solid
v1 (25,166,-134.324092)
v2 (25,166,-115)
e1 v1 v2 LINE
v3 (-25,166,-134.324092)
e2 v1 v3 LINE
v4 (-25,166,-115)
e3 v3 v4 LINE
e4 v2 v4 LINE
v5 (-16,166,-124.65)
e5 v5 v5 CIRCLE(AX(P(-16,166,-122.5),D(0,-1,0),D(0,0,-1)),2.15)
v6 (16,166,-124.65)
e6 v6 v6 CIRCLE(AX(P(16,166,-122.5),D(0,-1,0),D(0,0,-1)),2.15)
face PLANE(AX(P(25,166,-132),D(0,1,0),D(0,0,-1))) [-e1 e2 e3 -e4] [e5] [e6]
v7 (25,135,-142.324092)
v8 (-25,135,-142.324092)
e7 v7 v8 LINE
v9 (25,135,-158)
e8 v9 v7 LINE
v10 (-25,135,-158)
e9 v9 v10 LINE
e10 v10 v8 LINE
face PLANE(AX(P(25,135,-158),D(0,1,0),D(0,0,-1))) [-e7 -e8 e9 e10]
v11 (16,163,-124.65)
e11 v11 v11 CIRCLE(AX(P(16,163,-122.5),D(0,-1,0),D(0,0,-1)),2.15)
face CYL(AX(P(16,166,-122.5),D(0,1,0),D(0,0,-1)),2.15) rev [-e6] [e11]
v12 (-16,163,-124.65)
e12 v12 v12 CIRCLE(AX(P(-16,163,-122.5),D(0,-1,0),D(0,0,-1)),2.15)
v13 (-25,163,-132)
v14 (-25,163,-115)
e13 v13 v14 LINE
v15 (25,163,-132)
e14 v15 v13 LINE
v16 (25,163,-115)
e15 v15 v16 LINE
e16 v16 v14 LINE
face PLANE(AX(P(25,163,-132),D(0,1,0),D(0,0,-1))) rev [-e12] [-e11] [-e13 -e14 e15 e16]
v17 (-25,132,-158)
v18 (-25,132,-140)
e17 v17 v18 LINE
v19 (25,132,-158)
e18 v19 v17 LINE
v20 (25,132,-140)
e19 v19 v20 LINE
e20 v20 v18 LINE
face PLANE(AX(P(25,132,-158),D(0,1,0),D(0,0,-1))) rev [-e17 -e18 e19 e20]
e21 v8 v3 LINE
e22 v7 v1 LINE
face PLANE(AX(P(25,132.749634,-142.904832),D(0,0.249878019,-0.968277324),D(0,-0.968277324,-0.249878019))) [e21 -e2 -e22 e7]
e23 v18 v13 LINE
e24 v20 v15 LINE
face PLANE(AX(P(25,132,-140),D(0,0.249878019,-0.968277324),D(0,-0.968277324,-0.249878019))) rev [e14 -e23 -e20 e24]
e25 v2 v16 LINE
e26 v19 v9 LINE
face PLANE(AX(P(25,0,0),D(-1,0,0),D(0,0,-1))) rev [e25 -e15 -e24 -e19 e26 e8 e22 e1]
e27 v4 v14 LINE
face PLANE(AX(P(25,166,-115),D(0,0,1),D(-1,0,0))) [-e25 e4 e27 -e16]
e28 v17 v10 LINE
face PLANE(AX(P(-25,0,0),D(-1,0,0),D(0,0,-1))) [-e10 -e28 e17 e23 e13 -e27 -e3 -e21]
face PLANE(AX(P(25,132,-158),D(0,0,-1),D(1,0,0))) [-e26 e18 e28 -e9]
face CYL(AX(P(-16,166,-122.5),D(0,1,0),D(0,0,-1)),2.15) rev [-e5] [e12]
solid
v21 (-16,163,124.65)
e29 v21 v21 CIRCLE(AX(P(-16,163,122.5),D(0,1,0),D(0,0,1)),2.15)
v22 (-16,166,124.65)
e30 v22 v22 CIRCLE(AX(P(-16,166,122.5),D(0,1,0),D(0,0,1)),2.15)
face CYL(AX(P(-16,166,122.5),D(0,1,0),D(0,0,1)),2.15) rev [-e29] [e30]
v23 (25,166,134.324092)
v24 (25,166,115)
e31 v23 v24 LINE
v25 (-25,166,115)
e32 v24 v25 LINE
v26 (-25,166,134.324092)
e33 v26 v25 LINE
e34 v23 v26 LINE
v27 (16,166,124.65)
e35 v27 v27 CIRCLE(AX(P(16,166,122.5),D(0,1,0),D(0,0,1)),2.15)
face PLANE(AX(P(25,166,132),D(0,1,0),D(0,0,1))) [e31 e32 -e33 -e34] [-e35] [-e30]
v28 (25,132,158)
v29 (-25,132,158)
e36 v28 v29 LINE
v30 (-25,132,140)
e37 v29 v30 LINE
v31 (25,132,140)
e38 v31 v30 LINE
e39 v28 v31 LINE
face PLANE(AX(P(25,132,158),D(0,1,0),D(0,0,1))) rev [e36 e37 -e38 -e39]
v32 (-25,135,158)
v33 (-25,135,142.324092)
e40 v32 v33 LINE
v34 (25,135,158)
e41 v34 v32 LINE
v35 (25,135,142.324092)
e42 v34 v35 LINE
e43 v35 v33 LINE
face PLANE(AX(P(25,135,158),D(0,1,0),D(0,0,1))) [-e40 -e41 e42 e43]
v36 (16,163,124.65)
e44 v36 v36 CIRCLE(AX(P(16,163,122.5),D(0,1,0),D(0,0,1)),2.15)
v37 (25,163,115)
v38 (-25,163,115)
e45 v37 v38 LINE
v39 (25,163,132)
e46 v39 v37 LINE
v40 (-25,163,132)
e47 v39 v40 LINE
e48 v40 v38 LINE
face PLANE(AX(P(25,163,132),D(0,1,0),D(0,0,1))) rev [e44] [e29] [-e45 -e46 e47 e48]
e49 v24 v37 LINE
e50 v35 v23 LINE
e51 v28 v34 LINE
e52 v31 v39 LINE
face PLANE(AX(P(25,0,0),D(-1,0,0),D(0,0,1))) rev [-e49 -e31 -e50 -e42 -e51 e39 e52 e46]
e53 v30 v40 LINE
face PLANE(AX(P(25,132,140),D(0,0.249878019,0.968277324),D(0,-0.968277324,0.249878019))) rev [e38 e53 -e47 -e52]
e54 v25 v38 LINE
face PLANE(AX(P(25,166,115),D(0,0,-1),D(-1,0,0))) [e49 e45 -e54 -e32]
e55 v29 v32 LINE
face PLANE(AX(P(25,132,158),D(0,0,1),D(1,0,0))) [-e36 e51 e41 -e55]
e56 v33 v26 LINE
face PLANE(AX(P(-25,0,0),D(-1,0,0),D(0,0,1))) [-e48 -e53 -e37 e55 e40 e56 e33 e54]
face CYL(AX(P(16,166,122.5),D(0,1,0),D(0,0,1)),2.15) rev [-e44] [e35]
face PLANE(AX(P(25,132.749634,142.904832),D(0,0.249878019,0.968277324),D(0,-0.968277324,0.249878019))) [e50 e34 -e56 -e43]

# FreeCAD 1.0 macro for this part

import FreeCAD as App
import Part
import Sketcher

V = App.Vector


def add_polygon(sketch, points):
    """Adds a closed chain of lines whose ends are joined by coincident constraints."""
    first, n = sketch.GeometryCount, len(points)
    for a, b in zip(points, points[1:] + points[:1]):
        sketch.addGeometry(Part.LineSegment(App.Vector(*a, 0), App.Vector(*b, 0)), False)
    for i in range(n):
        sketch.addConstraint(Sketcher.Constraint("Coincident", first + i, 2, first + (i + 1) % n, 1))

doc = App.newDocument("Part")
body = doc.addObject("PartDesign::Body", "Body")

# Sketch on YZ plane
sketch1 = body.newObject("Sketcher::SketchObject", "Sketch")
sketch1.AttachmentSupport = (doc.getObject("YZ_Plane"), [""])
sketch1.MapMode = "FlatFace"
add_polygon(sketch1, [(132, 158), (132, 140), (163, 132), (163, 115), (166, 115), (166, 134.324092), (135, 142.324092), (135, 158)])  # lines 0-7
sketch1.addConstraint(Sketcher.Constraint("Vertical", 0))
sketch1.addConstraint(Sketcher.Constraint("Vertical", 2))
sketch1.addConstraint(Sketcher.Constraint("Horizontal", 3))
sketch1.addConstraint(Sketcher.Constraint("Vertical", 4))
sketch1.addConstraint(Sketcher.Constraint("Vertical", 6))
sketch1.addConstraint(Sketcher.Constraint("Horizontal", 7))
sketch1.addConstraint(Sketcher.Constraint("Parallel", 1, 5))
sketch1.addConstraint(Sketcher.Constraint("Equal", 3, 7))
sketch1.addConstraint(Sketcher.Constraint("DistanceX", 3, 1, 3, 2, 3.0))
sketch1.addConstraint(Sketcher.Constraint("DistanceY", 0, 2, 0, 1, 18.0))
sketch1.addConstraint(Sketcher.Constraint("DistanceY", 2, 2, 2, 1, 17.0))
sketch1.addConstraint(Sketcher.Constraint("DistanceX", -1, 1, 0, 2, 132.0))
sketch1.addConstraint(Sketcher.Constraint("DistanceY", -1, 1, 0, 2, 140.0))
sketch1.addConstraint(Sketcher.Constraint("DistanceX", -1, 1, 1, 2, 163.0))
sketch1.addConstraint(Sketcher.Constraint("DistanceY", -1, 1, 1, 2, 132.0))
sketch1.addConstraint(Sketcher.Constraint("DistanceY", 4, 1, 4, 2, 19.324092))
pad1 = body.newObject("PartDesign::Pad", "Pad")
pad1.Profile = sketch1
pad1.Length = 50
pad1.Midplane = True

# Sketch on XZ plane
sketch2 = body.newObject("Sketcher::SketchObject", "Sketch001")
sketch2.AttachmentSupport = (doc.getObject("XZ_Plane"), [""])
sketch2.MapMode = "FlatFace"
sketch2.AttachmentOffset = App.Placement(V(0, 0, -166), App.Rotation())
sketch2.addGeometry(Part.Circle(V(16, 122.5, 0), V(0, 0, 1), 2.15), False)
sketch2.addGeometry(Part.Circle(V(-16, 122.5, 0), V(0, 0, 1), 2.15), False)
sketch2.addConstraint(Sketcher.Constraint("Equal", 0, 1))
sketch2.addConstraint(Sketcher.Constraint("Symmetric", 0, 3, 1, 3, -2))
sketch2.addConstraint(Sketcher.Constraint("Diameter", 0, 4.3))
sketch2.addConstraint(Sketcher.Constraint("DistanceX", -1, 1, 0, 3, 16.0))
sketch2.addConstraint(Sketcher.Constraint("DistanceY", -1, 1, 0, 3, 122.5))
doc.recompute()
hole = body.newObject("PartDesign::Hole", "Hole")
hole.Profile = sketch2
hole.ThreadType = "None"
hole.Diameter = 4.3
hole.DepthType = "ThroughAll"
hole.Reversed = True
body2 = doc.addObject("PartDesign::Body", "Body001")
doc.recompute()

mirroring = doc.addObject("Part::Mirroring", "Mirroring")
mirroring.Source = body
mirroring.Base = V(0, 0, 0)
mirroring.Normal = V(0, 0, 1)
body2.BaseFeature = mirroring
doc.recompute()
mirroring.Visibility = False

doc.recompute()
